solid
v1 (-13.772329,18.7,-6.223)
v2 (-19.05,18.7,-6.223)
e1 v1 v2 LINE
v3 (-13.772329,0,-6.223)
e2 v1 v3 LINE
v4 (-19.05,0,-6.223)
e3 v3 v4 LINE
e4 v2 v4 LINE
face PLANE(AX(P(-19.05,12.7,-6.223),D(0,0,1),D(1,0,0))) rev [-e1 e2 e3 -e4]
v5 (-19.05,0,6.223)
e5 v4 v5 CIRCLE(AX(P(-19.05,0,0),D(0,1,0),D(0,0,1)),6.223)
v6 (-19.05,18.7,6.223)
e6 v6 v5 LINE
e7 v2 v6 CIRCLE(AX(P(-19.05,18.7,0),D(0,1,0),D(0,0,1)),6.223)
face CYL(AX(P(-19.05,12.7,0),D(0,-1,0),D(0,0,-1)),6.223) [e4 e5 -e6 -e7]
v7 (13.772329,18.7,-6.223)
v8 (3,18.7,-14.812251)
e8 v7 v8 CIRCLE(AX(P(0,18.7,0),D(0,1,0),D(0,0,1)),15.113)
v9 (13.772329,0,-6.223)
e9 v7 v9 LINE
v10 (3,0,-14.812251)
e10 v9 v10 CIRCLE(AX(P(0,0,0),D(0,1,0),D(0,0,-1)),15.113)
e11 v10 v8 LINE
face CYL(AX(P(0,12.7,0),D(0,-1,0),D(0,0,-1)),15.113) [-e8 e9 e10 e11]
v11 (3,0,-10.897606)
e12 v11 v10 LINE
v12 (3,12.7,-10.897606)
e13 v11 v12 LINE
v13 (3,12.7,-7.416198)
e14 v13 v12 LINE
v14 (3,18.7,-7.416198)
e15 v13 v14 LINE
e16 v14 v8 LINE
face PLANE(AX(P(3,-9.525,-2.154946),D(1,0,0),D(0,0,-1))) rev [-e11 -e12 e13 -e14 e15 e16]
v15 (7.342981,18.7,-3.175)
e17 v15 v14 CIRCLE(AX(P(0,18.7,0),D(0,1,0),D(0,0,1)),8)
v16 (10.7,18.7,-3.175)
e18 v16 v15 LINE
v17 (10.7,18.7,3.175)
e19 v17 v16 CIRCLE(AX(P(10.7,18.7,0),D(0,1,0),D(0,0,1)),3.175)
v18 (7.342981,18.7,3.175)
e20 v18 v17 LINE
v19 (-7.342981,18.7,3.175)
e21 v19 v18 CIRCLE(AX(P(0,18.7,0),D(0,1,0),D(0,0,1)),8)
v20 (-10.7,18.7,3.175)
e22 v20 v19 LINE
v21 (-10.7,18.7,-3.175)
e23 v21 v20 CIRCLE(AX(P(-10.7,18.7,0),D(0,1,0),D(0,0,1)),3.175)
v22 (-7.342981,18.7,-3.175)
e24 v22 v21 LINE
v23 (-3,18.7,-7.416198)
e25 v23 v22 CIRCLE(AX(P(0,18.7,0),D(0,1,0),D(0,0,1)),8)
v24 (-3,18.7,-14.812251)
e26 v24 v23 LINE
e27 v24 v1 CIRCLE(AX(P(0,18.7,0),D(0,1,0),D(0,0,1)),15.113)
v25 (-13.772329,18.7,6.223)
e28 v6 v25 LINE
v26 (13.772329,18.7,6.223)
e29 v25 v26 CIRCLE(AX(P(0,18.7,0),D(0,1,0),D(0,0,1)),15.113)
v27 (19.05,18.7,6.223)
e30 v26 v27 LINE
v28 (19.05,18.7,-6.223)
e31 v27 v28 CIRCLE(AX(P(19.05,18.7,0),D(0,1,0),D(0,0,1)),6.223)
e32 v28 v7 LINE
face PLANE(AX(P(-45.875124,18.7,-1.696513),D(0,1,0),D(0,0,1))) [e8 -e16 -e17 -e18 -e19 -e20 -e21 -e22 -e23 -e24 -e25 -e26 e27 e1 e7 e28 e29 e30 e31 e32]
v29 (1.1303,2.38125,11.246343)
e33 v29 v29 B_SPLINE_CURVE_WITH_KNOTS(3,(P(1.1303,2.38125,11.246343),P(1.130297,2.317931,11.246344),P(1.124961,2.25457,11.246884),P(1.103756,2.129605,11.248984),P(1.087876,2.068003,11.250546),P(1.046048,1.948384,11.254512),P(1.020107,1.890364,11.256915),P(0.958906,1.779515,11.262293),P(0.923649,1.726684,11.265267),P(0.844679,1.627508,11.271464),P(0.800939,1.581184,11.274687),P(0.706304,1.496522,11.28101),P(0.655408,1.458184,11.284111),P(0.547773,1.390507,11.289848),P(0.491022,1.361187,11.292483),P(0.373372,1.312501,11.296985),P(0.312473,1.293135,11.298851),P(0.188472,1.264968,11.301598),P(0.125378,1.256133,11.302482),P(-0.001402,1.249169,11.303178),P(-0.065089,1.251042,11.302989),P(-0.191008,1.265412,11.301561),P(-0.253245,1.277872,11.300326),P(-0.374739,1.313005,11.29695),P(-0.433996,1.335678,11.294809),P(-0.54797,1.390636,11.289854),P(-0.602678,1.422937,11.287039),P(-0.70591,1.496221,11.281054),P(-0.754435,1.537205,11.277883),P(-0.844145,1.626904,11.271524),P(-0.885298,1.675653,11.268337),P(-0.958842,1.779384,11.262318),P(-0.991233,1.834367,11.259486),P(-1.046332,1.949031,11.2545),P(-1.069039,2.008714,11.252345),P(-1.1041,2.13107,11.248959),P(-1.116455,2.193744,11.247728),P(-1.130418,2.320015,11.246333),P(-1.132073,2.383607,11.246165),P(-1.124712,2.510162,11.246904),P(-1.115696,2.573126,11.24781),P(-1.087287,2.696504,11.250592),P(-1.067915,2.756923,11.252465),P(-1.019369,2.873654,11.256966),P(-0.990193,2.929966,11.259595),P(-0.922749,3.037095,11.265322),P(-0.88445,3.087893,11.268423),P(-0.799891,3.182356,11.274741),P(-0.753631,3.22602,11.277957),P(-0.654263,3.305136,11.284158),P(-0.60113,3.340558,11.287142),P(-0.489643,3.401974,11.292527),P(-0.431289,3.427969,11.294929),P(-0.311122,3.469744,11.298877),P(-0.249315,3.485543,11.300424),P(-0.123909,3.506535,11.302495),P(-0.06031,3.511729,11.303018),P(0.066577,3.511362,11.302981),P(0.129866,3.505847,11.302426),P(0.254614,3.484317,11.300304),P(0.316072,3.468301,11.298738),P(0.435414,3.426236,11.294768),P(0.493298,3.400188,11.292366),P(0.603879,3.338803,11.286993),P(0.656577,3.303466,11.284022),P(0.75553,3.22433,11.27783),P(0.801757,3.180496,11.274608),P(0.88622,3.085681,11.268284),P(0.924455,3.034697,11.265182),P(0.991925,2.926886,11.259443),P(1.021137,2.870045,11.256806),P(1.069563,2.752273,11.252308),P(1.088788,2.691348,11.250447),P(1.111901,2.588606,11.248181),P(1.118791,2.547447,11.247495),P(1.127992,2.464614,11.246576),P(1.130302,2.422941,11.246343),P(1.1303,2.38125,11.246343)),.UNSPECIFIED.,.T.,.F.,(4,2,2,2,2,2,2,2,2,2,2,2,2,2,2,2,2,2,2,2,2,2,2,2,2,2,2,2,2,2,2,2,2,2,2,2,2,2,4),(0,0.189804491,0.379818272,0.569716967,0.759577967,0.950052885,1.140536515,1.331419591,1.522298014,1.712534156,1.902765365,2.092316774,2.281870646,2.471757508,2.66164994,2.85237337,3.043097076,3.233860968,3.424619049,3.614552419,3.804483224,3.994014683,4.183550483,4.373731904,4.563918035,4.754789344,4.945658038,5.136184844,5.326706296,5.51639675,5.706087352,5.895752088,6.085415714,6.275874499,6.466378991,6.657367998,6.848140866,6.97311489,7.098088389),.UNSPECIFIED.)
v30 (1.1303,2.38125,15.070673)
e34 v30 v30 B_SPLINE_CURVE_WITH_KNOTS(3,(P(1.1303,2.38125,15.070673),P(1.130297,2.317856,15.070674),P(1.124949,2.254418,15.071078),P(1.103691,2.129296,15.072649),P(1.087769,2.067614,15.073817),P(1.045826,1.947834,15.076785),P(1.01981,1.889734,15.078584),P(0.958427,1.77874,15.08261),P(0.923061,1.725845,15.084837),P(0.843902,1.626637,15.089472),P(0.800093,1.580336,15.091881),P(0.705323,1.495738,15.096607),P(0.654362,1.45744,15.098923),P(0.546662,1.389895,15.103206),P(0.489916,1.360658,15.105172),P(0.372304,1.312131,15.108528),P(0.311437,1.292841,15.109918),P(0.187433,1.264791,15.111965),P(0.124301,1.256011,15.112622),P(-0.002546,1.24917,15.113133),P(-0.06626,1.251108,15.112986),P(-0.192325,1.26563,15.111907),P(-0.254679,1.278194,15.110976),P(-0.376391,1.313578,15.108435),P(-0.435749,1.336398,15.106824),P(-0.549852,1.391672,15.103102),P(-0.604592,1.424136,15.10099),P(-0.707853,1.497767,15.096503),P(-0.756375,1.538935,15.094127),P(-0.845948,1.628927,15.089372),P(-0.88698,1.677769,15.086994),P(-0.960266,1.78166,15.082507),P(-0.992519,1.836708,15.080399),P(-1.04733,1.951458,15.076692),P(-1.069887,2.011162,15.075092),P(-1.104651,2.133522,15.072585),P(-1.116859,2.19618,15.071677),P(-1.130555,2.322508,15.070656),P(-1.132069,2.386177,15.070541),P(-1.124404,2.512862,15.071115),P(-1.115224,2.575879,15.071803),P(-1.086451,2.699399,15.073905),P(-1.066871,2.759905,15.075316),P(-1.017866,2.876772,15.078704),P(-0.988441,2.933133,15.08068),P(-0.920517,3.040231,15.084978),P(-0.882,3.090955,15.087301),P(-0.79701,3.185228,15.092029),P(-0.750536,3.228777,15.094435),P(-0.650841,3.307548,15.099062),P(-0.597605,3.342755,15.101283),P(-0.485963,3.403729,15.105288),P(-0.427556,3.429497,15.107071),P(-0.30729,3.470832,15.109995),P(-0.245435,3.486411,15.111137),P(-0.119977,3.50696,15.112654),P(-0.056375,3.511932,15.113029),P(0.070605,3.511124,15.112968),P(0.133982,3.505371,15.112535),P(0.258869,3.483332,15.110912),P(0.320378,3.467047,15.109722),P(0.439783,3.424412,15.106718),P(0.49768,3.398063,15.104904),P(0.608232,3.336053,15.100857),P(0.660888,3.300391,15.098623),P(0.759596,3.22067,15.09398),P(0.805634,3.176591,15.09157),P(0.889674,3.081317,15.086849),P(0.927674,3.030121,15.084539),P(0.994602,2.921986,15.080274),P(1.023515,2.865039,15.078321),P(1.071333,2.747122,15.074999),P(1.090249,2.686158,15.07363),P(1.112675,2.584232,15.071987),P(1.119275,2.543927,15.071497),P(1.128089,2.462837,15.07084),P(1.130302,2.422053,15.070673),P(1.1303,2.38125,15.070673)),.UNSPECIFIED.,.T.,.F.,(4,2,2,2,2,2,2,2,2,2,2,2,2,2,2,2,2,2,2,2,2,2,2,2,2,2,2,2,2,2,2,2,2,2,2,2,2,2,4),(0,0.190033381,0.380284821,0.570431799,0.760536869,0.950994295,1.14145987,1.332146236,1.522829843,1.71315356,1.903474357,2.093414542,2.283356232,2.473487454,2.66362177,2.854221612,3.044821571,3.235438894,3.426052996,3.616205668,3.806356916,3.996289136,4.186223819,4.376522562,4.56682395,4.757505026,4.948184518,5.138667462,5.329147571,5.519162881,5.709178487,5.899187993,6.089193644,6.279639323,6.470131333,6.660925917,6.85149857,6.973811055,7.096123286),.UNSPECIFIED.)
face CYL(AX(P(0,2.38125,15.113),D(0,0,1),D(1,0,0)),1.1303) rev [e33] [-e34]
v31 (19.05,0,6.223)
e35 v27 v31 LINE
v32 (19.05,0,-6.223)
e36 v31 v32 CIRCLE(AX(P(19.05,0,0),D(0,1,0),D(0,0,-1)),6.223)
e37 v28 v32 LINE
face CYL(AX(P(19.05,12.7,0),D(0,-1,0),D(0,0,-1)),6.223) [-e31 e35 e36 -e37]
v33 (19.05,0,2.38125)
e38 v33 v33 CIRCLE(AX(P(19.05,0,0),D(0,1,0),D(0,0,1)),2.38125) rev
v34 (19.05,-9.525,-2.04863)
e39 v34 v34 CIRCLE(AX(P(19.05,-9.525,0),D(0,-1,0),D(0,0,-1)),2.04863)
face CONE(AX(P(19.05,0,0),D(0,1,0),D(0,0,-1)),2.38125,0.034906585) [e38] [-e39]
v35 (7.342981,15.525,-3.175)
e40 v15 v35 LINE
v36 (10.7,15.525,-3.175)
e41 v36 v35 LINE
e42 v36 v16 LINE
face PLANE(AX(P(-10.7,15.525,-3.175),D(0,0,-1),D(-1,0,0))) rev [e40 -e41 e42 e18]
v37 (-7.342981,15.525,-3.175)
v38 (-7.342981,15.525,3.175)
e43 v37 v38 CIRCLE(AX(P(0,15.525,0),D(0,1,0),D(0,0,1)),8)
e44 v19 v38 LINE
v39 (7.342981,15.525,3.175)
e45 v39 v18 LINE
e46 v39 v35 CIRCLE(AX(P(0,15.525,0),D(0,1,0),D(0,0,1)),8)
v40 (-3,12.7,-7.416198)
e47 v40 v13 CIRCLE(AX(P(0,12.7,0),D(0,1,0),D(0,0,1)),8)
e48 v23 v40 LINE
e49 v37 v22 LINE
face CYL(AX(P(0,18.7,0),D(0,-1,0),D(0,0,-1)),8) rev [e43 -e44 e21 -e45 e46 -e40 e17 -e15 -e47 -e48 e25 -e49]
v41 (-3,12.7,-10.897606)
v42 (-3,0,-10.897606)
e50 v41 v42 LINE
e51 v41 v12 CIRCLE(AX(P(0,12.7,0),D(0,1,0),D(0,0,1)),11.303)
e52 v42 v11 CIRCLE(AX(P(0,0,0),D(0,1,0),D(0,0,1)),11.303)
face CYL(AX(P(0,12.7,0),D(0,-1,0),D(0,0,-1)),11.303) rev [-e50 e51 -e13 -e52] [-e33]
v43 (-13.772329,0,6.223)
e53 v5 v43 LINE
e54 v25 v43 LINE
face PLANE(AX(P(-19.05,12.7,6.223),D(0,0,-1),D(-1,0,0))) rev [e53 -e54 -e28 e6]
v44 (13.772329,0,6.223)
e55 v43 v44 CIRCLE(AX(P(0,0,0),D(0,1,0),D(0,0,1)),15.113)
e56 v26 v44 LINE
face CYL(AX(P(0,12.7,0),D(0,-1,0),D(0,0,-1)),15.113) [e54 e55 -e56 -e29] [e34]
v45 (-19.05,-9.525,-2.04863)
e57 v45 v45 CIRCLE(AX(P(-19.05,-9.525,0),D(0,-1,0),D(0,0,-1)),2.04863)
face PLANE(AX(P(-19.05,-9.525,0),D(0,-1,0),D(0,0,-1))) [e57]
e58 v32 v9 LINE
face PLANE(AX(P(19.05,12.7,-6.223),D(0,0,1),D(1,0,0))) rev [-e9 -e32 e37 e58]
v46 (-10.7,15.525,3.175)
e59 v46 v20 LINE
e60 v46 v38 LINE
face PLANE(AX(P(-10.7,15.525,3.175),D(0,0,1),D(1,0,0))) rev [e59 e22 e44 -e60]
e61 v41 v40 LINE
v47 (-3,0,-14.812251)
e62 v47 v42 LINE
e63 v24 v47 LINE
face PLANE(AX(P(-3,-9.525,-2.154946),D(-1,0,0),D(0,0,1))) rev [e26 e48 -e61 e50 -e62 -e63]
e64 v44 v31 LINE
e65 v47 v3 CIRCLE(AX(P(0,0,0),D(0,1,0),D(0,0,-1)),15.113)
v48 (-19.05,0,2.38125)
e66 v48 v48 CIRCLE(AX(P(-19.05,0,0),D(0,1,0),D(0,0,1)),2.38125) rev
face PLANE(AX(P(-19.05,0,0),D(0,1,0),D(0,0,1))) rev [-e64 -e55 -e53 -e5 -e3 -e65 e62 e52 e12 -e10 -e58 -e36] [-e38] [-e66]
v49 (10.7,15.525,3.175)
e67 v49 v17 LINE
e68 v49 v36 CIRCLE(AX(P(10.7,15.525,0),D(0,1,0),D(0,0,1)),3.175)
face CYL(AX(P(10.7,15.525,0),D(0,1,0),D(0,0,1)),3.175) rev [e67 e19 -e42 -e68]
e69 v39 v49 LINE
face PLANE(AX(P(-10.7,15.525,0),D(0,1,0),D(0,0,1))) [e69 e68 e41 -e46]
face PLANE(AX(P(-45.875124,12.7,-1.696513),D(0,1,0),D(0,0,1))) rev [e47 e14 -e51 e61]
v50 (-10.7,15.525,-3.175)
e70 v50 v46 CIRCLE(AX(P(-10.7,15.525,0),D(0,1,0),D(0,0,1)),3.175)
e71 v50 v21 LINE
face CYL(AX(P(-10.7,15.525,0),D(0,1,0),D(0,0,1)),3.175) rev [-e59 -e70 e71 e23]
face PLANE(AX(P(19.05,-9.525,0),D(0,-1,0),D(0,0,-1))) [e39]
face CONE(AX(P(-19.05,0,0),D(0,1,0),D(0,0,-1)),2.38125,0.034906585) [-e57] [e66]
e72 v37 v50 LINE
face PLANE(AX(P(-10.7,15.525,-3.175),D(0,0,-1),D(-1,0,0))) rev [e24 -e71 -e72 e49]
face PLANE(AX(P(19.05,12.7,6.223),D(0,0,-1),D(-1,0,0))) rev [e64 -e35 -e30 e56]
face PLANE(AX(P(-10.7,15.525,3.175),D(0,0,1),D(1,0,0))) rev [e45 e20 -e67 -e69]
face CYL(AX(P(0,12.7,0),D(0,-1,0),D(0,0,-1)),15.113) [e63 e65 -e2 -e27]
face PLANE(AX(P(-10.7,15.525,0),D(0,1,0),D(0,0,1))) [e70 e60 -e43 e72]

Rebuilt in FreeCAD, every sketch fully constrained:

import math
import FreeCAD as App
import Part
import Sketcher
Q = App.Units.Quantity


def add_polygon(sketch, points):
    """Adds a closed chain of lines whose ends are joined by coincident constraints."""
    first, n = sketch.GeometryCount, len(points)
    for a, b in zip(points, points[1:] + points[:1]):
        sketch.addGeometry(Part.LineSegment(App.Vector(*a, 0), App.Vector(*b, 0)), False)
    for i in range(n):
        sketch.addConstraint(Sketcher.Constraint("Coincident", first + i, 2, first + (i + 1) % n, 1))

doc = App.newDocument("Part")
body = doc.addObject("PartDesign::Body", "Body")

sketch1 = doc.addObject("Sketcher::SketchObject", "Sketch")
body.addObject(sketch1)
sketch1.AttachmentSupport = (doc.XZ_Plane, [""])
sketch1.MapMode = "FlatFace"
sketch1.addGeometry([
    Part.LineSegment(App.Vector(-14, -6, 0), App.Vector(-19, -6, 0)),
    Part.ArcOfCircle(Part.Circle(App.Vector(-19, 0, 0), App.Vector(0, 0, 1), 6), math.radians(90), math.radians(270)),
    Part.LineSegment(App.Vector(-19, 6, 0), App.Vector(-14, 6, 0)),
    Part.ArcOfCircle(Part.Circle(App.Vector(0, 0, 0), App.Vector(0, 0, 1), 15), math.radians(24), math.radians(156)),
    Part.LineSegment(App.Vector(14, 6, 0), App.Vector(19, 6, 0)),
    Part.ArcOfCircle(Part.Circle(App.Vector(19, 0, 0), App.Vector(0, 0, 1), 6), math.radians(-90), math.radians(90)),
    Part.LineSegment(App.Vector(19, -6, 0), App.Vector(14, -6, 0)),
    Part.ArcOfCircle(Part.Circle(App.Vector(0, 0, 0), App.Vector(0, 0, 1), 15), math.radians(-156), math.radians(-24)),
    Part.Circle(App.Vector(0, 0, 0), App.Vector(0, 0, 1), 11),
], False)
sketch1.addConstraint([
    Sketcher.Constraint("Tangent", 0, 2, 1, 2),
    Sketcher.Constraint("Tangent", 1, 1, 2, 1),
    Sketcher.Constraint("Coincident", 2, 2, 3, 2),
    Sketcher.Constraint("Coincident", 3, 1, 4, 1),
    Sketcher.Constraint("Tangent", 4, 2, 5, 2),
    Sketcher.Constraint("Tangent", 5, 1, 6, 1),
    Sketcher.Constraint("Coincident", 6, 2, 7, 2),
    Sketcher.Constraint("Coincident", 7, 1, 0, 1),
    Sketcher.Constraint("Horizontal", 0),
    Sketcher.Constraint("Horizontal", 2),
    Sketcher.Constraint("Horizontal", 4),
    Sketcher.Constraint("Horizontal", 6),
    Sketcher.Constraint("Coincident", 3, 3, -1, 1),
    Sketcher.Constraint("Coincident", 7, 3, -1, 1),
    Sketcher.Constraint("Coincident", 8, 3, -1, 1),
    Sketcher.Constraint("Equal", 1, 5),
    Sketcher.Constraint("Equal", 3, 7),
    Sketcher.Constraint("Symmetric", 1, 3, 5, 3, -1, 1),
    Sketcher.Constraint("PointOnObject", 1, 3, -1),
    Sketcher.Constraint("Diameter", 8, Q("0.89 in")),
    Sketcher.Constraint("Radius", 1, Q("0.245 in")),
    Sketcher.Constraint("Radius", 3, Q("0.595 in")),
    Sketcher.Constraint("DistanceX", 1, 3, 5, 3, Q("1.5 in")),
])
pad1 = doc.addObject("PartDesign::Pad", "Pad")
body.addObject(pad1)
pad1.Profile = sketch1
pad1.Length = Q("0.5 in")
pad1.Reversed = True

sketch2 = doc.addObject("Sketcher::SketchObject", "Sketch001")
body.addObject(sketch2)
sketch2.AttachmentSupport = (doc.XY_Plane, [""])
sketch2.MapMode = "FlatFace"
sketch2.AttachmentOffset = App.Placement(App.Vector(0, 0, 0.595 * 25.4), App.Rotation())
sketch2.addGeometry(Part.Circle(App.Vector(0, 2.4, 0), App.Vector(0, 0, 1), 1.1), False)
sketch2.addConstraint([
    Sketcher.Constraint("PointOnObject", 0, 3, -2),
    Sketcher.Constraint("Diameter", 0, Q("0.089 in")),
    Sketcher.Constraint("DistanceY", -1, 1, 0, 3, Q("0.09375 in")),
])
doc.recompute()
hole = doc.addObject("PartDesign::Hole", "Hole")
body.addObject(hole)
hole.Profile = sketch2
hole.ThreadType = "None"
hole.Diameter = Q("0.089 in")
hole.DepthType = "ThroughAll"

sketch3 = doc.addObject("Sketcher::SketchObject", "Sketch002")
body.addObject(sketch3)
sketch3.AttachmentSupport = (doc.XZ_Plane, [""])
sketch3.MapMode = "FlatFace"
sketch3.addGeometry([
    Part.Circle(App.Vector(-19.1, 0, 0), App.Vector(0, 0, 1), 2.4),
    Part.Circle(App.Vector(19.1, 0, 0), App.Vector(0, 0, 1), 2.4),
], False)
sketch3.addConstraint([
    Sketcher.Constraint("Equal", 0, 1),
    Sketcher.Constraint("Symmetric", 0, 3, 1, 3, -1, 1),
    Sketcher.Constraint("PointOnObject", 0, 3, -1),
    Sketcher.Constraint("Diameter", 0, Q("0.1875 in")),
    Sketcher.Constraint("DistanceX", 0, 3, 1, 3, Q("1.5 in")),
])
pad2 = doc.addObject("PartDesign::Pad", "Pad001")
body.addObject(pad2)
pad2.Profile = sketch3
pad2.Length = Q("0.375 in")
pad2.TaperAngle = -2

sketch4 = doc.addObject("Sketcher::SketchObject", "Sketch003")
body.addObject(sketch4)
sketch4.AttachmentSupport = (doc.XZ_Plane, [""])
sketch4.MapMode = "FlatFace"
sketch4.AttachmentOffset = App.Placement(App.Vector(0, 0, -0.5 * 25.4), App.Rotation())
sketch4.addGeometry([
    Part.LineSegment(App.Vector(14, 6, 0), App.Vector(19, 6, 0)),
    Part.ArcOfCircle(Part.Circle(App.Vector(19, 0, 0), App.Vector(0, 0, 1), 6), math.radians(-90), math.radians(90)),
    Part.LineSegment(App.Vector(19, -6, 0), App.Vector(14, -6, 0)),
    Part.ArcOfCircle(Part.Circle(App.Vector(0, 0, 0), App.Vector(0, 0, 1), 15), math.radians(-156), math.radians(-24)),
    Part.LineSegment(App.Vector(-14, -6, 0), App.Vector(-19, -6, 0)),
    Part.ArcOfCircle(Part.Circle(App.Vector(-19, 0, 0), App.Vector(0, 0, 1), 6), math.radians(90), math.radians(270)),
    Part.LineSegment(App.Vector(-19, 6, 0), App.Vector(-14, 6, 0)),
    Part.ArcOfCircle(Part.Circle(App.Vector(0, 0, 0), App.Vector(0, 0, 1), 15), math.radians(24), math.radians(156)),
    Part.Circle(App.Vector(0, 0, 0), App.Vector(0, 0, 1), 8),
], False)
sketch4.addConstraint([
    Sketcher.Constraint("Tangent", 0, 2, 1, 2),
    Sketcher.Constraint("Tangent", 1, 1, 2, 1),
    Sketcher.Constraint("Coincident", 2, 2, 3, 2),
    Sketcher.Constraint("Coincident", 3, 1, 4, 1),
    Sketcher.Constraint("Tangent", 4, 2, 5, 2),
    Sketcher.Constraint("Tangent", 5, 1, 6, 1),
    Sketcher.Constraint("Coincident", 6, 2, 7, 2),
    Sketcher.Constraint("Coincident", 7, 1, 0, 1),
    Sketcher.Constraint("Horizontal", 0),
    Sketcher.Constraint("Horizontal", 2),
    Sketcher.Constraint("Horizontal", 4),
    Sketcher.Constraint("Horizontal", 6),
    Sketcher.Constraint("Coincident", 3, 3, -1, 1),
    Sketcher.Constraint("Coincident", 7, 3, -1, 1),
    Sketcher.Constraint("Coincident", 8, 3, -1, 1),
    Sketcher.Constraint("Equal", 1, 5),
    Sketcher.Constraint("Equal", 3, 7),
    Sketcher.Constraint("Symmetric", 1, 3, 5, 3, -1, 1),
    Sketcher.Constraint("PointOnObject", 1, 3, -1),
    Sketcher.Constraint("Radius", 1, Q("0.245 in")),
    Sketcher.Constraint("Radius", 3, Q("0.595 in")),
    Sketcher.Constraint("DistanceX", 5, 3, 1, 3, Q("1.5 in")),
    Sketcher.Constraint("Diameter", 8, 16.0),
])
pad3 = doc.addObject("PartDesign::Pad", "Pad002")
body.addObject(pad3)
pad3.Profile = sketch4
pad3.Length = 6
pad3.Reversed = True

sketch5 = doc.addObject("Sketcher::SketchObject", "Sketch004")
body.addObject(sketch5)
sketch5.AttachmentSupport = (doc.XZ_Plane, [""])
sketch5.MapMode = "FlatFace"
sketch5.AttachmentOffset = App.Placement(App.Vector(0, 0, -18.7), App.Rotation())
add_polygon(sketch5, [(-3, -18), (-3, -2), (3, -2), (3, -18)])
sketch5.addConstraint([
    Sketcher.Constraint("Vertical", 0),
    Sketcher.Constraint("Horizontal", 1),
    Sketcher.Constraint("Vertical", 2),
    Sketcher.Constraint("Horizontal", 3),
    Sketcher.Constraint("DistanceX", 1, 1, 1, 2, 6.0),
    Sketcher.Constraint("DistanceX", 0, 2, -1, 1, 3.0),
    Sketcher.Constraint("DistanceY", 0, 1, 0, 2, 15.993334),
    Sketcher.Constraint("DistanceY", 2, 2, -1, 1, 18.14828),
])
pocket1 = doc.addObject("PartDesign::Pocket", "Pocket")
body.addObject(pocket1)
pocket1.Profile = sketch5
pocket1.Type = "ThroughAll"
pocket1.Reversed = True

sketch6 = doc.addObject("Sketcher::SketchObject", "Sketch005")
body.addObject(sketch6)
sketch6.AttachmentSupport = (doc.XZ_Plane, [""])
sketch6.MapMode = "FlatFace"
sketch6.AttachmentOffset = App.Placement(App.Vector(0, 0, -18.7), App.Rotation())
sketch6.addGeometry([
    Part.LineSegment(App.Vector(10.7, -3.2, 0), App.Vector(-10.7, -3.2, 0)),
    Part.ArcOfCircle(Part.Circle(App.Vector(-10.7, 0, 0), App.Vector(0, 0, 1), 3.2), math.radians(90), math.radians(270)),
    Part.LineSegment(App.Vector(-10.7, 3.2, 0), App.Vector(10.7, 3.2, 0)),
    Part.ArcOfCircle(Part.Circle(App.Vector(10.7, 0, 0), App.Vector(0, 0, 1), 3.2), math.radians(-90), math.radians(90)),
], False)
sketch6.addConstraint([
    Sketcher.Constraint("Tangent", 0, 2, 1, 2),
    Sketcher.Constraint("Tangent", 1, 1, 2, 1),
    Sketcher.Constraint("Tangent", 2, 2, 3, 2),
    Sketcher.Constraint("Tangent", 3, 1, 0, 1),
    Sketcher.Constraint("Horizontal", 0),
    Sketcher.Constraint("Horizontal", 2),
    Sketcher.Constraint("Symmetric", 1, 3, 3, 3, -1, 1),
    Sketcher.Constraint("Radius", 1, Q("0.125 in")),
    Sketcher.Constraint("DistanceX", 0, 2, 0, 1, 21.4),
])
pocket2 = doc.addObject("PartDesign::Pocket", "Pocket001")
body.addObject(pocket2)
pocket2.Profile = sketch6
pocket2.Length = Q("0.125 in")
pocket2.Reversed = True

doc.recompute()
